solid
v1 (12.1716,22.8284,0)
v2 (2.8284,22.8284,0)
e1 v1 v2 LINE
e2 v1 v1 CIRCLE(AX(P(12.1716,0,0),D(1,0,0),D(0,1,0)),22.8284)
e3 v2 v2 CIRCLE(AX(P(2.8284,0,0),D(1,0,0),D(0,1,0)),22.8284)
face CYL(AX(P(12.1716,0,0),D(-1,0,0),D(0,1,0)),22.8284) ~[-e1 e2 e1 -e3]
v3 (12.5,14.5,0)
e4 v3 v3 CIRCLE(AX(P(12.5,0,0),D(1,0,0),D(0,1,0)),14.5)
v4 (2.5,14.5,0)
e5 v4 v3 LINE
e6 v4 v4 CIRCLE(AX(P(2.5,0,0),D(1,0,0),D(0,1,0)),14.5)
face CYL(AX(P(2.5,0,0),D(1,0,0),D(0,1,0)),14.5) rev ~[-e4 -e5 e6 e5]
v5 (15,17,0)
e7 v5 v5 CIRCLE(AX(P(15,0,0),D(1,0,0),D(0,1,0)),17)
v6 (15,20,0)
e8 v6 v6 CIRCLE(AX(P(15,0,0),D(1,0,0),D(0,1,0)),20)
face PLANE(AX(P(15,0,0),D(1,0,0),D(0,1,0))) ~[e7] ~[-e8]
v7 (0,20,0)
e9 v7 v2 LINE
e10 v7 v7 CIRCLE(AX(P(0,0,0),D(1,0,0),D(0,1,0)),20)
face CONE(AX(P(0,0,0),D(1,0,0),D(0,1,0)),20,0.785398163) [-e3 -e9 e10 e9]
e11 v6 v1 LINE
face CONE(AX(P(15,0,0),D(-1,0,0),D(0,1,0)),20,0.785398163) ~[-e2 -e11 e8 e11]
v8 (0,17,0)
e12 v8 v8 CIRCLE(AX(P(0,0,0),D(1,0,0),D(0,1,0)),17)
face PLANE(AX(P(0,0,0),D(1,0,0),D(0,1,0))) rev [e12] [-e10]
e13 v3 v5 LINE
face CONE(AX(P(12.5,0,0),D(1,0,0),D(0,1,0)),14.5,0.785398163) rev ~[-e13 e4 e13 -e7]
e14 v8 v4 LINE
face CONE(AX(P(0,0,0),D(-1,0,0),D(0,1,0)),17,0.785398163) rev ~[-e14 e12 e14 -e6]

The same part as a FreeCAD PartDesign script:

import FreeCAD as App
import Part
import Sketcher

V = App.Vector
Q = App.Units.Quantity


def add_polygon(sketch, points):
    """Adds a closed chain of lines whose ends are joined by coincident constraints."""
    first, n = sketch.GeometryCount, len(points)
    for a, b in zip(points, points[1:] + points[:1]):
        sketch.addGeometry(Part.LineSegment(App.Vector(*a, 0), App.Vector(*b, 0)), False)
    for i in range(n):
        sketch.addConstraint(Sketcher.Constraint("Coincident", first + i, 2, first + (i + 1) % n, 1))

doc = App.newDocument("Part")
body = doc.addObject("PartDesign::Body", "Body")

sketch1 = body.newObject("Sketcher::SketchObject", "Sketch")
sketch1.AttachmentSupport = (doc.getObject("XY_Plane"), [""])
sketch1.MapMode = "FlatFace"
add_polygon(sketch1, [(2.8284, 22.8284), (0, 20), (0, 17), (2.5, 14.5), (12.5, 14.5), (15, 17), (15, 20), (12.1716, 22.8284)])
sketch1.addConstraint([
    Sketcher.Constraint("Vertical", 1),
    Sketcher.Constraint("Horizontal", 3),
    Sketcher.Constraint("Vertical", 5),
    Sketcher.Constraint("Horizontal", 7),
    Sketcher.Constraint("PointOnObject", 0, 2, -2),
    Sketcher.Constraint("Perpendicular", 0, 2),
    Sketcher.Constraint("Perpendicular", 2, 4),
    Sketcher.Constraint("Perpendicular", 4, 6),
    Sketcher.Constraint("Horizontal", 1, 2, 4, 2),
    Sketcher.Constraint("Horizontal", 0, 2, 5, 2),
    Sketcher.Constraint("Equal", 2, 4),
    Sketcher.Constraint("DistanceX", 3, 1, 3, 2, Q("10 mm")),
    Sketcher.Constraint("DistanceY", 1, 2, 1, 1, Q("3 mm")),
    Sketcher.Constraint("Distance", 0, Q("4 mm")),
    Sketcher.Constraint("DistanceY", -1, 1, 0, 2, Q("20 mm")),
    Sketcher.Constraint("DistanceX", -1, 1, 4, 2, Q("15 mm")),
])
revolution = body.newObject("PartDesign::Revolution", "Revolution")
revolution.Profile = sketch1
revolution.ReferenceAxis = (sketch1, ["H_Axis"])
revolution.Angle = 360

doc.recompute()
